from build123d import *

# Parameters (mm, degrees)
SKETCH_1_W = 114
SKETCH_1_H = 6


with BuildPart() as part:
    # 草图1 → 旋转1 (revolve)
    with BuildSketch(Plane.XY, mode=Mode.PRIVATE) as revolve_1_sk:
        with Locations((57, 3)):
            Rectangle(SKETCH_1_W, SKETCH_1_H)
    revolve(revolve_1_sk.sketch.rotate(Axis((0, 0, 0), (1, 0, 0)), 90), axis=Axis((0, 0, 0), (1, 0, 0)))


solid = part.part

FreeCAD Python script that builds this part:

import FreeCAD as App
import Part
import Sketcher
Q = App.Units.Quantity

doc = App.newDocument("Part")
body = doc.addObject("PartDesign::Body", "Body")

# Sketch on XY plane
sketch1 = body.newObject("Sketcher::SketchObject", "Sketch")
sketch1.AttachmentSupport = (doc.getObject("XY_Plane"), [""])
sketch1.MapMode = "FlatFace"
sketch1.addGeometry([
    Part.LineSegment(App.Vector(0, 6, 0), App.Vector(0, 0, 0)),
    Part.LineSegment(App.Vector(0, 0, 0), App.Vector(114, 0, 0)),
    Part.LineSegment(App.Vector(114, 0, 0), App.Vector(114, 6, 0)),
    Part.LineSegment(App.Vector(114, 6, 0), App.Vector(0, 6, 0)),
], False)
sketch1.addConstraint([
    Sketcher.Constraint("Coincident", 0, 2, 1, 1),
    Sketcher.Constraint("Coincident", 1, 2, 2, 1),
    Sketcher.Constraint("Coincident", 2, 2, 3, 1),
    Sketcher.Constraint("Coincident", 3, 2, 0, 1),
    Sketcher.Constraint("Vertical", 0),
    Sketcher.Constraint("Horizontal", 1),
    Sketcher.Constraint("Vertical", 2),
    Sketcher.Constraint("Horizontal", 3),
    Sketcher.Constraint("Coincident", 0, 2, -1, 1),
    Sketcher.Constraint("DistanceX", 1, 1, 1, 2, Q("114 mm")),
    Sketcher.Constraint("DistanceY", 0, 2, 0, 1, Q("6 mm")),
])
revolution = body.newObject("PartDesign::Revolution", "Revolution")
revolution.Profile = sketch1
revolution.ReferenceAxis = (sketch1, ["H_Axis"])
revolution.Angle = 360

doc.recompute()
